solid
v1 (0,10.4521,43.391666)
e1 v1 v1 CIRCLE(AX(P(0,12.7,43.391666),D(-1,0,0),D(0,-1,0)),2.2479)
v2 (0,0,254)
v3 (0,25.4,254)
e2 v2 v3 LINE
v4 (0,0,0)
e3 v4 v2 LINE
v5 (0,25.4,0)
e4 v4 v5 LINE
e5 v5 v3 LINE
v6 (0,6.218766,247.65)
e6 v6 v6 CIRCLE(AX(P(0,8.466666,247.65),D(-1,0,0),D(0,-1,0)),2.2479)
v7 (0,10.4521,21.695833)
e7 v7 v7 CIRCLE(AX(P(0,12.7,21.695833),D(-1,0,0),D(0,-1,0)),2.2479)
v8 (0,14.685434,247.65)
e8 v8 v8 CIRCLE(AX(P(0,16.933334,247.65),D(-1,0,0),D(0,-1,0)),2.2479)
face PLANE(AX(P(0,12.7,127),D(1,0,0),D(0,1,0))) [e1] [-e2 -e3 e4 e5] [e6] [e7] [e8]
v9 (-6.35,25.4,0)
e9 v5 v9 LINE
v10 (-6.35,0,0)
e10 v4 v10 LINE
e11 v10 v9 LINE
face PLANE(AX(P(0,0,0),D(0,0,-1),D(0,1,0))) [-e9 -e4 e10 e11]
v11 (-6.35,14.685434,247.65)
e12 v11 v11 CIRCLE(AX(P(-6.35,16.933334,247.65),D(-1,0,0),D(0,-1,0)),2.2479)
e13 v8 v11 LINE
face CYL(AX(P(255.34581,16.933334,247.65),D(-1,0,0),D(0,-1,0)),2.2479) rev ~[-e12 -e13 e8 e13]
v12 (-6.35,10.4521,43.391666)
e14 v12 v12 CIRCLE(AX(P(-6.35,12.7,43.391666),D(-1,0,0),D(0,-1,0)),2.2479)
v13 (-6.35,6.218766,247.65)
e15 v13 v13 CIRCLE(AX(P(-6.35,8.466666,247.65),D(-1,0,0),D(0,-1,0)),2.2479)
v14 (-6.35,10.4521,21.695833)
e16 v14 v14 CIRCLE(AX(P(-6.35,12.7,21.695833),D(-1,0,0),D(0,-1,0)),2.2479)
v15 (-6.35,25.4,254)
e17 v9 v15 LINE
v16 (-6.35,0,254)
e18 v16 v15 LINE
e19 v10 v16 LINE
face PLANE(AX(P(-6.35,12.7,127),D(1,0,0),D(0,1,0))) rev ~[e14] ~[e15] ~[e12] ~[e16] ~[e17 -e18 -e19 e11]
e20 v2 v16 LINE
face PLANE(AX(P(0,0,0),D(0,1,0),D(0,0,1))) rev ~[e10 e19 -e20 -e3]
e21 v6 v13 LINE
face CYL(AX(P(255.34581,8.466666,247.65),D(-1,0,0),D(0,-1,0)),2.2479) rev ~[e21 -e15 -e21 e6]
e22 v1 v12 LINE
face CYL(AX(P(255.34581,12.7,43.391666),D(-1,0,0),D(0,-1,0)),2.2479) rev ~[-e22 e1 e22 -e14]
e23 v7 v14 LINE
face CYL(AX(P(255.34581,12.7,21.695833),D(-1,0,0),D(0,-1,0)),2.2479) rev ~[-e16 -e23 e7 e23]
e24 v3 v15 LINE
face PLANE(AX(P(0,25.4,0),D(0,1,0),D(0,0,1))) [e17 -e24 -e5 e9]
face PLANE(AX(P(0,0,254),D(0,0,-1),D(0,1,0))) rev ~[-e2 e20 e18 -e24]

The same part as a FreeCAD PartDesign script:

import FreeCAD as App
import Part
import Sketcher

V = App.Vector
Q = App.Units.Quantity

doc = App.newDocument("Part")
body = doc.addObject("PartDesign::Body", "Body")

# Sketch on YZ plane
sketch1 = body.newObject("Sketcher::SketchObject", "Sketch")
sketch1.AttachmentSupport = (doc.getObject("YZ_Plane"), [""])
sketch1.MapMode = "FlatFace"
sketch1.addGeometry([
    Part.LineSegment(V(0, 254, 0), V(0, 0, 0)),
    Part.LineSegment(V(0, 0, 0), V(25, 0, 0)),
    Part.LineSegment(V(25, 0, 0), V(25, 254, 0)),
    Part.LineSegment(V(25, 254, 0), V(0, 254, 0)),
], False)
sketch1.addConstraint([
    Sketcher.Constraint("Coincident", 0, 2, 1, 1),
    Sketcher.Constraint("Coincident", 1, 2, 2, 1),
    Sketcher.Constraint("Coincident", 2, 2, 3, 1),
    Sketcher.Constraint("Coincident", 3, 2, 0, 1),
    Sketcher.Constraint("Vertical", 0),
    Sketcher.Constraint("Horizontal", 1),
    Sketcher.Constraint("Vertical", 2),
    Sketcher.Constraint("Horizontal", 3),
    Sketcher.Constraint("Coincident", 0, 2, -1, 1),
    Sketcher.Constraint("DistanceX", 1, 1, 1, 2, Q("1 in")),
    Sketcher.Constraint("DistanceY", 0, 2, 0, 1, Q("10 in")),
])
pad1 = body.newObject("PartDesign::Pad", "Pad")
pad1.Profile = sketch1
pad1.Length = Q("0.25 in")
pad1.Reversed = True

# Sketch on YZ plane
sketch2 = body.newObject("Sketcher::SketchObject", "Sketch001")
sketch2.AttachmentSupport = (doc.getObject("YZ_Plane"), [""])
sketch2.MapMode = "FlatFace"
sketch2.addGeometry([
    Part.Circle(V(8.5, 247.7, 0), V(0, 0, 1), 2.2),
    Part.Circle(V(16.9, 247.7, 0), V(0, 0, 1), 2.2),
], False)
sketch2.addConstraint([
    Sketcher.Constraint("Equal", 0, 1),
    Sketcher.Constraint("Horizontal", 0, 3, 1, 3),
    Sketcher.Constraint("Diameter", 0, Q("0.177 in")),
    Sketcher.Constraint("DistanceY", -1, 1, 0, 3, Q("9.75 in")),
    Sketcher.Constraint("DistanceX", 0, 3, 1, 3, Q("8.466668 mm")),
    Sketcher.Constraint("DistanceX", -1, 1, 0, 3, Q("8.466666 mm")),
])
doc.recompute()
hole = body.newObject("PartDesign::Hole", "Hole")
hole.Profile = sketch2
hole.ThreadType = "None"
hole.Diameter = Q("0.177 in")
hole.DepthType = "ThroughAll"

# Sketch on YZ plane
sketch3 = body.newObject("Sketcher::SketchObject", "Sketch002")
sketch3.AttachmentSupport = (doc.getObject("YZ_Plane"), [""])
sketch3.MapMode = "FlatFace"
sketch3.addGeometry([
    Part.Circle(V(12.7, 43.4, 0), V(0, 0, 1), 2.2),
    Part.Circle(V(12.7, 21.7, 0), V(0, 0, 1), 2.2),
], False)
sketch3.addConstraint([
    Sketcher.Constraint("Equal", 0, 1),
    Sketcher.Constraint("Vertical", 0, 3, 1, 3),
    Sketcher.Constraint("Diameter", 0, Q("0.177 in")),
    Sketcher.Constraint("DistanceX", -1, 1, 0, 3, Q("0.5 in")),
    Sketcher.Constraint("DistanceY", -1, 1, 0, 3, Q("43.391666 mm")),
    Sketcher.Constraint("DistanceY", -1, 1, 1, 3, Q("21.695833 mm")),
])
doc.recompute()
hole2 = body.newObject("PartDesign::Hole", "Hole001")
hole2.Profile = sketch3
hole2.ThreadType = "None"
hole2.Diameter = Q("0.177 in")
hole2.DepthType = "ThroughAll"

doc.recompute()
